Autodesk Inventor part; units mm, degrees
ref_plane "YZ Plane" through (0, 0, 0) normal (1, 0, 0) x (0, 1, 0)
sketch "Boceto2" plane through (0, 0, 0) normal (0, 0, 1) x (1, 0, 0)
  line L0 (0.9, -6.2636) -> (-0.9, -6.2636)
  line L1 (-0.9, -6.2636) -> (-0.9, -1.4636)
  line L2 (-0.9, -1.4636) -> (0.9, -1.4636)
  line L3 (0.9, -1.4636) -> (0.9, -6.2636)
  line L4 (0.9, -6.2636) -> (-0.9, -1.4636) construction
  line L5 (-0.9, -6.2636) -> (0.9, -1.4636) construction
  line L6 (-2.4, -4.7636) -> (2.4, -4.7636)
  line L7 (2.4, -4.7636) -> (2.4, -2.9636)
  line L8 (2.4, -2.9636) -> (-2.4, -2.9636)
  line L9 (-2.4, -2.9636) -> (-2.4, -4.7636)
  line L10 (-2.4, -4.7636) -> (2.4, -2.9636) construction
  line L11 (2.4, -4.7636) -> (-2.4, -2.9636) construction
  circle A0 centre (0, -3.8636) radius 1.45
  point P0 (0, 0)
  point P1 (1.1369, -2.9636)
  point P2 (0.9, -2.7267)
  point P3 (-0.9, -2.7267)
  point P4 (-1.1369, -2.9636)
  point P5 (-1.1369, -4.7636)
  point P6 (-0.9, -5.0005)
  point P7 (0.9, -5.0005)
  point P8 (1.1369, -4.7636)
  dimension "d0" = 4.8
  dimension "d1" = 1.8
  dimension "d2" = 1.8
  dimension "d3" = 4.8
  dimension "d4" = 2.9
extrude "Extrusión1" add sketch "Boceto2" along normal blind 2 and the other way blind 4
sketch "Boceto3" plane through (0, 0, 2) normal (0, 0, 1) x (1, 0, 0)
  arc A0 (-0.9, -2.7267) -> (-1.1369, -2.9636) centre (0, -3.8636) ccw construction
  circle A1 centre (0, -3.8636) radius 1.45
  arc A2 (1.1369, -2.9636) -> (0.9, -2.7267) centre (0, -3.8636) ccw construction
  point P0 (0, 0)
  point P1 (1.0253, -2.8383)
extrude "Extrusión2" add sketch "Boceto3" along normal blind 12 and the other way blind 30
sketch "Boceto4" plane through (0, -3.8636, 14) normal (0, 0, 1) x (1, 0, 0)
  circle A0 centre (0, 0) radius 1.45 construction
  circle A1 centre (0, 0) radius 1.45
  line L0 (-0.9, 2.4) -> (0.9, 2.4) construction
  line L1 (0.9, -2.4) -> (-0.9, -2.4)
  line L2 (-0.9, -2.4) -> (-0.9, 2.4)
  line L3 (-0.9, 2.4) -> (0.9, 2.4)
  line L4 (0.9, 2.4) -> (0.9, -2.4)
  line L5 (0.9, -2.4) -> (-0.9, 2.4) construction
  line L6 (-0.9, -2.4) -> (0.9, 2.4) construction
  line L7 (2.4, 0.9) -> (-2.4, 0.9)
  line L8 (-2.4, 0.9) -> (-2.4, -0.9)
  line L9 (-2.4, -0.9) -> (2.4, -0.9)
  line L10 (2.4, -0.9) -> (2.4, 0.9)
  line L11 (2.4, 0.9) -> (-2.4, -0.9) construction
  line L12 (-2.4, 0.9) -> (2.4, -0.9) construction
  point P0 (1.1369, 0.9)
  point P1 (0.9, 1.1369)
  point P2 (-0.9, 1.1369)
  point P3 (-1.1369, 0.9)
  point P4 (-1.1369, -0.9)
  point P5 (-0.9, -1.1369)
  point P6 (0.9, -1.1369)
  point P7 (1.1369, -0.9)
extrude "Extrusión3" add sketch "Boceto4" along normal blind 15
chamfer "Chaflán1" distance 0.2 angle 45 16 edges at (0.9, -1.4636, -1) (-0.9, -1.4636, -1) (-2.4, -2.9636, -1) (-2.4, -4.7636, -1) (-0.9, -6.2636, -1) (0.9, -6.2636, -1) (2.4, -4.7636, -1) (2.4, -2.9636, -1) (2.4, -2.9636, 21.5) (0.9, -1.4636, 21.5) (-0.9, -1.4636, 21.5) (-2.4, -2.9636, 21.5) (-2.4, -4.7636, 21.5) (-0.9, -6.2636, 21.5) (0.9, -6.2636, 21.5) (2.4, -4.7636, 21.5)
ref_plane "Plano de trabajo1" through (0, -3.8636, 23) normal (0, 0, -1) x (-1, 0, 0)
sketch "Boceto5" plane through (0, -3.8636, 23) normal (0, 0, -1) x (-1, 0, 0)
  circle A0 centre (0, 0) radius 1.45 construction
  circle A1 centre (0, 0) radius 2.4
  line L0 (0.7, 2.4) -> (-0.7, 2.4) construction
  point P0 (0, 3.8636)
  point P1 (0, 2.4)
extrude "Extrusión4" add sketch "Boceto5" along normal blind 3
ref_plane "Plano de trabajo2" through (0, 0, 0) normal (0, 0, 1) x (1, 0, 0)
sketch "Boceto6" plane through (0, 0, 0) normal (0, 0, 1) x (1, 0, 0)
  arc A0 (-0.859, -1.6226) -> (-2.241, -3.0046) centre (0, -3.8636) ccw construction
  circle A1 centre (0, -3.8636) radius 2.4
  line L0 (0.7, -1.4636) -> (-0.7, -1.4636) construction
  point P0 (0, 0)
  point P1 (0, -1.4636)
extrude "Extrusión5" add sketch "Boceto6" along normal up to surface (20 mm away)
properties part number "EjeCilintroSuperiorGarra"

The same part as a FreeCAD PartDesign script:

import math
import FreeCAD as App
import Part
import Sketcher


def edges_at(feature, points):
    """Names of the edges that pass closest to the given points."""
    edges = feature.Shape.Edges
    near = lambda p: min(range(len(edges)), key=lambda i: edges[i].distToShape(Part.Vertex(*p))[0])
    return sorted({f"Edge{near(p) + 1}" for p in points})

doc = App.newDocument("Part")
body = doc.addObject("PartDesign::Body", "Body")

# Sketch on XY plane
sketch1 = body.newObject("Sketcher::SketchObject", "Sketch")
sketch1.AttachmentSupport = (doc.getObject("XY_Plane"), [""])
sketch1.MapMode = "FlatFace"
sketch1.addGeometry(Part.LineSegment(App.Vector(-0.9, -6.26, 0), App.Vector(0.9, -6.26, 0)), False)
sketch1.addGeometry(Part.LineSegment(App.Vector(0.9, -6.26, 0), App.Vector(0.9, -5, 0)), False)
sketch1.addGeometry(Part.ArcOfCircle(Part.Circle(App.Vector(0, -3.86, 0), App.Vector(0, 0, 1), 1.45), math.radians(-51.63), math.radians(-38.37)), False)
sketch1.addGeometry(Part.LineSegment(App.Vector(1.14, -4.76, 0), App.Vector(2.4, -4.76, 0)), False)
sketch1.addGeometry(Part.LineSegment(App.Vector(2.4, -4.76, 0), App.Vector(2.4, -2.96, 0)), False)
sketch1.addGeometry(Part.LineSegment(App.Vector(2.4, -2.96, 0), App.Vector(1.14, -2.96, 0)), False)
sketch1.addGeometry(Part.ArcOfCircle(Part.Circle(App.Vector(0, -3.86, 0), App.Vector(0, 0, 1), 1.45), math.radians(38.37), math.radians(51.63)), False)
sketch1.addGeometry(Part.LineSegment(App.Vector(0.9, -2.73, 0), App.Vector(0.9, -1.46, 0)), False)
sketch1.addGeometry(Part.LineSegment(App.Vector(0.9, -1.46, 0), App.Vector(-0.9, -1.46, 0)), False)
sketch1.addGeometry(Part.LineSegment(App.Vector(-0.9, -1.46, 0), App.Vector(-0.9, -2.73, 0)), False)
sketch1.addGeometry(Part.ArcOfCircle(Part.Circle(App.Vector(0, -3.86, 0), App.Vector(0, 0, 1), 1.45), math.radians(128.37), math.radians(141.63)), False)
sketch1.addGeometry(Part.LineSegment(App.Vector(-1.14, -2.96, 0), App.Vector(-2.4, -2.96, 0)), False)
sketch1.addGeometry(Part.LineSegment(App.Vector(-2.4, -2.96, 0), App.Vector(-2.4, -4.76, 0)), False)
sketch1.addGeometry(Part.LineSegment(App.Vector(-2.4, -4.76, 0), App.Vector(-1.14, -4.76, 0)), False)
sketch1.addGeometry(Part.ArcOfCircle(Part.Circle(App.Vector(0, -3.86, 0), App.Vector(0, 0, 1), 1.45), math.radians(-141.63), math.radians(-128.37)), False)
sketch1.addGeometry(Part.LineSegment(App.Vector(-0.9, -5, 0), App.Vector(-0.9, -6.26, 0)), False)
sketch1.addConstraint(Sketcher.Constraint("Coincident", 0, 2, 1, 1))
sketch1.addConstraint(Sketcher.Constraint("Coincident", 1, 2, 2, 1))
sketch1.addConstraint(Sketcher.Constraint("Coincident", 2, 2, 3, 1))
sketch1.addConstraint(Sketcher.Constraint("Coincident", 3, 2, 4, 1))
sketch1.addConstraint(Sketcher.Constraint("Coincident", 4, 2, 5, 1))
sketch1.addConstraint(Sketcher.Constraint("Coincident", 5, 2, 6, 1))
sketch1.addConstraint(Sketcher.Constraint("Coincident", 6, 2, 7, 1))
sketch1.addConstraint(Sketcher.Constraint("Coincident", 7, 2, 8, 1))
sketch1.addConstraint(Sketcher.Constraint("Coincident", 8, 2, 9, 1))
sketch1.addConstraint(Sketcher.Constraint("Coincident", 9, 2, 10, 1))
sketch1.addConstraint(Sketcher.Constraint("Coincident", 10, 2, 11, 1))
sketch1.addConstraint(Sketcher.Constraint("Coincident", 11, 2, 12, 1))
sketch1.addConstraint(Sketcher.Constraint("Coincident", 12, 2, 13, 1))
sketch1.addConstraint(Sketcher.Constraint("Coincident", 13, 2, 14, 1))
sketch1.addConstraint(Sketcher.Constraint("Coincident", 14, 2, 15, 1))
sketch1.addConstraint(Sketcher.Constraint("Coincident", 15, 2, 0, 1))
sketch1.addConstraint(Sketcher.Constraint("Horizontal", 0))
sketch1.addConstraint(Sketcher.Constraint("Vertical", 1))
sketch1.addConstraint(Sketcher.Constraint("Horizontal", 3))
sketch1.addConstraint(Sketcher.Constraint("Vertical", 4))
sketch1.addConstraint(Sketcher.Constraint("Horizontal", 5))
sketch1.addConstraint(Sketcher.Constraint("Vertical", 7))
sketch1.addConstraint(Sketcher.Constraint("Horizontal", 8))
sketch1.addConstraint(Sketcher.Constraint("Vertical", 9))
sketch1.addConstraint(Sketcher.Constraint("Horizontal", 11))
sketch1.addConstraint(Sketcher.Constraint("Vertical", 12))
sketch1.addConstraint(Sketcher.Constraint("Horizontal", 13))
sketch1.addConstraint(Sketcher.Constraint("Vertical", 15))
sketch1.addConstraint(Sketcher.Constraint("Coincident", 6, 3, 2, 3))
sketch1.addConstraint(Sketcher.Constraint("Coincident", 10, 3, 2, 3))
sketch1.addConstraint(Sketcher.Constraint("Coincident", 14, 3, 2, 3))
sketch1.addConstraint(Sketcher.Constraint("Equal", 2, 6))
sketch1.addConstraint(Sketcher.Constraint("Equal", 6, 10))
sketch1.addConstraint(Sketcher.Constraint("Equal", 10, 14))
sketch1.addConstraint(Sketcher.Constraint("Symmetric", 6, 2, 9, 2, -2))
sketch1.addConstraint(Sketcher.Constraint("Symmetric", 4, 2, 11, 2, -2))
sketch1.addConstraint(Sketcher.Constraint("Horizontal", 3, 2, 12, 2))
sketch1.addConstraint(Sketcher.Constraint("Horizontal", 1, 2, 14, 2))
sketch1.addConstraint(Sketcher.Constraint("Vertical", 2, 2, 5, 2))
sketch1.addConstraint(Sketcher.Constraint("Vertical", 1, 2, 6, 2))
sketch1.addConstraint(Sketcher.Constraint("Equal", 13, 1))
sketch1.addConstraint(Sketcher.Constraint("Equal", 8, 4))
sketch1.addConstraint(Sketcher.Constraint("Equal", 1, 7))
sketch1.addConstraint(Sketcher.Constraint("Radius", 2, 1.45))
sketch1.addConstraint(Sketcher.Constraint("DistanceX", 0, 1, 0, 2, 1.8))
sketch1.addConstraint(Sketcher.Constraint("DistanceX", -1, 1, 3, 2, 2.4))
sketch1.addConstraint(Sketcher.Constraint("DistanceY", 2, 3, -1, 1, 3.8636))
pad1 = body.newObject("PartDesign::Pad", "Pad")
pad1.Profile = sketch1
pad1.Type = "TwoLengths"
pad1.Length = 2
pad1.Length2 = 4

# Sketch on XY plane
sketch2 = body.newObject("Sketcher::SketchObject", "Sketch001")
sketch2.AttachmentSupport = (doc.getObject("XY_Plane"), [""])
sketch2.MapMode = "FlatFace"
sketch2.AttachmentOffset = App.Placement(App.Vector(0, 0, 2), App.Rotation())
sketch2.addGeometry(Part.Circle(App.Vector(0, -3.9, 0), App.Vector(0, 0, 1), 1.4), False)
sketch2.addConstraint(Sketcher.Constraint("PointOnObject", 0, 3, -2))
sketch2.addConstraint(Sketcher.Constraint("Diameter", 0, 2.9))
sketch2.addConstraint(Sketcher.Constraint("DistanceY", 0, 3, -1, 1, 3.8636))
pad2 = body.newObject("PartDesign::Pad", "Pad001")
pad2.Profile = sketch2
pad2.Type = "TwoLengths"
pad2.Length = 12
pad2.Length2 = 30

# Sketch on XY plane
sketch3 = body.newObject("Sketcher::SketchObject", "Sketch002")
sketch3.AttachmentSupport = (doc.getObject("XY_Plane"), [""])
sketch3.MapMode = "FlatFace"
sketch3.AttachmentOffset = App.Placement(App.Vector(0, 0, 14), App.Rotation())
sketch3.addGeometry(Part.LineSegment(App.Vector(1.14, -4.76, 0), App.Vector(2.4, -4.76, 0)), False)
sketch3.addGeometry(Part.LineSegment(App.Vector(2.4, -4.76, 0), App.Vector(2.4, -2.96, 0)), False)
sketch3.addGeometry(Part.LineSegment(App.Vector(2.4, -2.96, 0), App.Vector(1.14, -2.96, 0)), False)
sketch3.addGeometry(Part.ArcOfCircle(Part.Circle(App.Vector(0, -3.86, 0), App.Vector(0, 0, 1), 1.45), math.radians(38.37), math.radians(51.63)), False)
sketch3.addGeometry(Part.LineSegment(App.Vector(0.9, -2.73, 0), App.Vector(0.9, -1.46, 0)), False)
sketch3.addGeometry(Part.LineSegment(App.Vector(0.9, -1.46, 0), App.Vector(-0.9, -1.46, 0)), False)
sketch3.addGeometry(Part.LineSegment(App.Vector(-0.9, -1.46, 0), App.Vector(-0.9, -2.73, 0)), False)
sketch3.addGeometry(Part.ArcOfCircle(Part.Circle(App.Vector(0, -3.86, 0), App.Vector(0, 0, 1), 1.45), math.radians(128.37), math.radians(141.63)), False)
sketch3.addGeometry(Part.LineSegment(App.Vector(-1.14, -2.96, 0), App.Vector(-2.4, -2.96, 0)), False)
sketch3.addGeometry(Part.LineSegment(App.Vector(-2.4, -2.96, 0), App.Vector(-2.4, -4.76, 0)), False)
sketch3.addGeometry(Part.LineSegment(App.Vector(-2.4, -4.76, 0), App.Vector(-1.14, -4.76, 0)), False)
sketch3.addGeometry(Part.ArcOfCircle(Part.Circle(App.Vector(0, -3.86, 0), App.Vector(0, 0, 1), 1.45), math.radians(-141.63), math.radians(-128.37)), False)
sketch3.addGeometry(Part.LineSegment(App.Vector(-0.9, -5, 0), App.Vector(-0.9, -6.26, 0)), False)
sketch3.addGeometry(Part.LineSegment(App.Vector(-0.9, -6.26, 0), App.Vector(0.9, -6.26, 0)), False)
sketch3.addGeometry(Part.LineSegment(App.Vector(0.9, -6.26, 0), App.Vector(0.9, -5, 0)), False)
sketch3.addGeometry(Part.ArcOfCircle(Part.Circle(App.Vector(0, -3.86, 0), App.Vector(0, 0, 1), 1.45), math.radians(-51.63), math.radians(-38.37)), False)
sketch3.addConstraint(Sketcher.Constraint("Coincident", 0, 2, 1, 1))
sketch3.addConstraint(Sketcher.Constraint("Coincident", 1, 2, 2, 1))
sketch3.addConstraint(Sketcher.Constraint("Coincident", 2, 2, 3, 1))
sketch3.addConstraint(Sketcher.Constraint("Coincident", 3, 2, 4, 1))
sketch3.addConstraint(Sketcher.Constraint("Coincident", 4, 2, 5, 1))
sketch3.addConstraint(Sketcher.Constraint("Coincident", 5, 2, 6, 1))
sketch3.addConstraint(Sketcher.Constraint("Coincident", 6, 2, 7, 1))
sketch3.addConstraint(Sketcher.Constraint("Coincident", 7, 2, 8, 1))
sketch3.addConstraint(Sketcher.Constraint("Coincident", 8, 2, 9, 1))
sketch3.addConstraint(Sketcher.Constraint("Coincident", 9, 2, 10, 1))
sketch3.addConstraint(Sketcher.Constraint("Coincident", 10, 2, 11, 1))
sketch3.addConstraint(Sketcher.Constraint("Coincident", 11, 2, 12, 1))
sketch3.addConstraint(Sketcher.Constraint("Coincident", 12, 2, 13, 1))
sketch3.addConstraint(Sketcher.Constraint("Coincident", 13, 2, 14, 1))
sketch3.addConstraint(Sketcher.Constraint("Coincident", 14, 2, 15, 1))
sketch3.addConstraint(Sketcher.Constraint("Coincident", 15, 2, 0, 1))
sketch3.addConstraint(Sketcher.Constraint("Horizontal", 0))
sketch3.addConstraint(Sketcher.Constraint("Vertical", 1))
sketch3.addConstraint(Sketcher.Constraint("Horizontal", 2))
sketch3.addConstraint(Sketcher.Constraint("Vertical", 4))
sketch3.addConstraint(Sketcher.Constraint("Horizontal", 5))
sketch3.addConstraint(Sketcher.Constraint("Vertical", 6))
sketch3.addConstraint(Sketcher.Constraint("Horizontal", 8))
sketch3.addConstraint(Sketcher.Constraint("Vertical", 9))
sketch3.addConstraint(Sketcher.Constraint("Horizontal", 10))
sketch3.addConstraint(Sketcher.Constraint("Vertical", 12))
sketch3.addConstraint(Sketcher.Constraint("Horizontal", 13))
sketch3.addConstraint(Sketcher.Constraint("Vertical", 14))
sketch3.addConstraint(Sketcher.Constraint("Coincident", 7, 3, 3, 3))
sketch3.addConstraint(Sketcher.Constraint("Coincident", 11, 3, 3, 3))
sketch3.addConstraint(Sketcher.Constraint("Coincident", 15, 3, 3, 3))
sketch3.addConstraint(Sketcher.Constraint("Equal", 3, 7))
sketch3.addConstraint(Sketcher.Constraint("Equal", 7, 11))
sketch3.addConstraint(Sketcher.Constraint("Equal", 11, 15))
sketch3.addConstraint(Sketcher.Constraint("Symmetric", 3, 2, 6, 2, -2))
sketch3.addConstraint(Sketcher.Constraint("Symmetric", 1, 2, 8, 2, -2))
sketch3.addConstraint(Sketcher.Constraint("Horizontal", 0, 2, 9, 2))
sketch3.addConstraint(Sketcher.Constraint("Horizontal", 11, 2, 14, 2))
sketch3.addConstraint(Sketcher.Constraint("Vertical", 7, 2, 10, 2))
sketch3.addConstraint(Sketcher.Constraint("Vertical", 6, 2, 11, 2))
sketch3.addConstraint(Sketcher.Constraint("Equal", 13, 1))
sketch3.addConstraint(Sketcher.Constraint("Equal", 10, 4))
sketch3.addConstraint(Sketcher.Constraint("Equal", 6, 12))
sketch3.addConstraint(Sketcher.Constraint("Radius", 3, 1.45))
sketch3.addConstraint(Sketcher.Constraint("DistanceX", 5, 2, 5, 1, 1.8))
sketch3.addConstraint(Sketcher.Constraint("DistanceX", -1, 1, 0, 2, 2.4))
sketch3.addConstraint(Sketcher.Constraint("DistanceY", 3, 3, -1, 1, 3.8636))
pad3 = body.newObject("PartDesign::Pad", "Pad002")
pad3.Profile = sketch3
pad3.Length = 15
doc.recompute()

chamfer = body.newObject("PartDesign::Chamfer", "Chamfer")
chamfer.Base = (pad3, edges_at(pad3, [
    (0.9, -1.464, -1),
    (-0.9, -1.464, -1),
    (-2.4, -2.964, -1),
    (-2.4, -4.764, -1),
    (-0.9, -6.264, -1),
    (0.9, -6.264, -1),
    (2.4, -4.764, -1),
    (2.4, -2.964, -1),
    (2.4, -2.964, 21.5),
    (0.9, -1.464, 21.5),
    (-0.9, -1.464, 21.5),
    (-2.4, -2.964, 21.5),
    (-2.4, -4.764, 21.5),
    (-0.9, -6.264, 21.5),
    (0.9, -6.264, 21.5),
    (2.4, -4.764, 21.5),
]))
chamfer.Size = 0.2

# Sketch on XY plane
sketch4 = body.newObject("Sketcher::SketchObject", "Sketch003")
sketch4.AttachmentSupport = (doc.getObject("XY_Plane"), [""])
sketch4.MapMode = "FlatFace"
sketch4.AttachmentOffset = App.Placement(App.Vector(0, 0, 23), App.Rotation())
sketch4.addGeometry(Part.Circle(App.Vector(0, -3.9, 0), App.Vector(0, 0, 1), 2.4), False)
sketch4.addConstraint(Sketcher.Constraint("PointOnObject", 0, 3, -2))
sketch4.addConstraint(Sketcher.Constraint("Diameter", 0, 4.8))
sketch4.addConstraint(Sketcher.Constraint("DistanceY", 0, 3, -1, 1, 3.8636))
pad4 = body.newObject("PartDesign::Pad", "Pad003")
pad4.Profile = sketch4
pad4.Length = 3
pad4.Reversed = True

# Sketch on XY plane
sketch5 = body.newObject("Sketcher::SketchObject", "Sketch004")
sketch5.AttachmentSupport = (doc.getObject("XY_Plane"), [""])
sketch5.MapMode = "FlatFace"
sketch5.addGeometry(Part.Circle(App.Vector(0, -3.9, 0), App.Vector(0, 0, 1), 2.4), False)
sketch5.addConstraint(Sketcher.Constraint("PointOnObject", 0, 3, -2))
sketch5.addConstraint(Sketcher.Constraint("Diameter", 0, 4.8))
sketch5.addConstraint(Sketcher.Constraint("DistanceY", 0, 3, -1, 1, 3.8636))
pad5 = body.newObject("PartDesign::Pad", "Pad004")
pad5.Profile = sketch5
pad5.Length = 20

doc.recompute()
